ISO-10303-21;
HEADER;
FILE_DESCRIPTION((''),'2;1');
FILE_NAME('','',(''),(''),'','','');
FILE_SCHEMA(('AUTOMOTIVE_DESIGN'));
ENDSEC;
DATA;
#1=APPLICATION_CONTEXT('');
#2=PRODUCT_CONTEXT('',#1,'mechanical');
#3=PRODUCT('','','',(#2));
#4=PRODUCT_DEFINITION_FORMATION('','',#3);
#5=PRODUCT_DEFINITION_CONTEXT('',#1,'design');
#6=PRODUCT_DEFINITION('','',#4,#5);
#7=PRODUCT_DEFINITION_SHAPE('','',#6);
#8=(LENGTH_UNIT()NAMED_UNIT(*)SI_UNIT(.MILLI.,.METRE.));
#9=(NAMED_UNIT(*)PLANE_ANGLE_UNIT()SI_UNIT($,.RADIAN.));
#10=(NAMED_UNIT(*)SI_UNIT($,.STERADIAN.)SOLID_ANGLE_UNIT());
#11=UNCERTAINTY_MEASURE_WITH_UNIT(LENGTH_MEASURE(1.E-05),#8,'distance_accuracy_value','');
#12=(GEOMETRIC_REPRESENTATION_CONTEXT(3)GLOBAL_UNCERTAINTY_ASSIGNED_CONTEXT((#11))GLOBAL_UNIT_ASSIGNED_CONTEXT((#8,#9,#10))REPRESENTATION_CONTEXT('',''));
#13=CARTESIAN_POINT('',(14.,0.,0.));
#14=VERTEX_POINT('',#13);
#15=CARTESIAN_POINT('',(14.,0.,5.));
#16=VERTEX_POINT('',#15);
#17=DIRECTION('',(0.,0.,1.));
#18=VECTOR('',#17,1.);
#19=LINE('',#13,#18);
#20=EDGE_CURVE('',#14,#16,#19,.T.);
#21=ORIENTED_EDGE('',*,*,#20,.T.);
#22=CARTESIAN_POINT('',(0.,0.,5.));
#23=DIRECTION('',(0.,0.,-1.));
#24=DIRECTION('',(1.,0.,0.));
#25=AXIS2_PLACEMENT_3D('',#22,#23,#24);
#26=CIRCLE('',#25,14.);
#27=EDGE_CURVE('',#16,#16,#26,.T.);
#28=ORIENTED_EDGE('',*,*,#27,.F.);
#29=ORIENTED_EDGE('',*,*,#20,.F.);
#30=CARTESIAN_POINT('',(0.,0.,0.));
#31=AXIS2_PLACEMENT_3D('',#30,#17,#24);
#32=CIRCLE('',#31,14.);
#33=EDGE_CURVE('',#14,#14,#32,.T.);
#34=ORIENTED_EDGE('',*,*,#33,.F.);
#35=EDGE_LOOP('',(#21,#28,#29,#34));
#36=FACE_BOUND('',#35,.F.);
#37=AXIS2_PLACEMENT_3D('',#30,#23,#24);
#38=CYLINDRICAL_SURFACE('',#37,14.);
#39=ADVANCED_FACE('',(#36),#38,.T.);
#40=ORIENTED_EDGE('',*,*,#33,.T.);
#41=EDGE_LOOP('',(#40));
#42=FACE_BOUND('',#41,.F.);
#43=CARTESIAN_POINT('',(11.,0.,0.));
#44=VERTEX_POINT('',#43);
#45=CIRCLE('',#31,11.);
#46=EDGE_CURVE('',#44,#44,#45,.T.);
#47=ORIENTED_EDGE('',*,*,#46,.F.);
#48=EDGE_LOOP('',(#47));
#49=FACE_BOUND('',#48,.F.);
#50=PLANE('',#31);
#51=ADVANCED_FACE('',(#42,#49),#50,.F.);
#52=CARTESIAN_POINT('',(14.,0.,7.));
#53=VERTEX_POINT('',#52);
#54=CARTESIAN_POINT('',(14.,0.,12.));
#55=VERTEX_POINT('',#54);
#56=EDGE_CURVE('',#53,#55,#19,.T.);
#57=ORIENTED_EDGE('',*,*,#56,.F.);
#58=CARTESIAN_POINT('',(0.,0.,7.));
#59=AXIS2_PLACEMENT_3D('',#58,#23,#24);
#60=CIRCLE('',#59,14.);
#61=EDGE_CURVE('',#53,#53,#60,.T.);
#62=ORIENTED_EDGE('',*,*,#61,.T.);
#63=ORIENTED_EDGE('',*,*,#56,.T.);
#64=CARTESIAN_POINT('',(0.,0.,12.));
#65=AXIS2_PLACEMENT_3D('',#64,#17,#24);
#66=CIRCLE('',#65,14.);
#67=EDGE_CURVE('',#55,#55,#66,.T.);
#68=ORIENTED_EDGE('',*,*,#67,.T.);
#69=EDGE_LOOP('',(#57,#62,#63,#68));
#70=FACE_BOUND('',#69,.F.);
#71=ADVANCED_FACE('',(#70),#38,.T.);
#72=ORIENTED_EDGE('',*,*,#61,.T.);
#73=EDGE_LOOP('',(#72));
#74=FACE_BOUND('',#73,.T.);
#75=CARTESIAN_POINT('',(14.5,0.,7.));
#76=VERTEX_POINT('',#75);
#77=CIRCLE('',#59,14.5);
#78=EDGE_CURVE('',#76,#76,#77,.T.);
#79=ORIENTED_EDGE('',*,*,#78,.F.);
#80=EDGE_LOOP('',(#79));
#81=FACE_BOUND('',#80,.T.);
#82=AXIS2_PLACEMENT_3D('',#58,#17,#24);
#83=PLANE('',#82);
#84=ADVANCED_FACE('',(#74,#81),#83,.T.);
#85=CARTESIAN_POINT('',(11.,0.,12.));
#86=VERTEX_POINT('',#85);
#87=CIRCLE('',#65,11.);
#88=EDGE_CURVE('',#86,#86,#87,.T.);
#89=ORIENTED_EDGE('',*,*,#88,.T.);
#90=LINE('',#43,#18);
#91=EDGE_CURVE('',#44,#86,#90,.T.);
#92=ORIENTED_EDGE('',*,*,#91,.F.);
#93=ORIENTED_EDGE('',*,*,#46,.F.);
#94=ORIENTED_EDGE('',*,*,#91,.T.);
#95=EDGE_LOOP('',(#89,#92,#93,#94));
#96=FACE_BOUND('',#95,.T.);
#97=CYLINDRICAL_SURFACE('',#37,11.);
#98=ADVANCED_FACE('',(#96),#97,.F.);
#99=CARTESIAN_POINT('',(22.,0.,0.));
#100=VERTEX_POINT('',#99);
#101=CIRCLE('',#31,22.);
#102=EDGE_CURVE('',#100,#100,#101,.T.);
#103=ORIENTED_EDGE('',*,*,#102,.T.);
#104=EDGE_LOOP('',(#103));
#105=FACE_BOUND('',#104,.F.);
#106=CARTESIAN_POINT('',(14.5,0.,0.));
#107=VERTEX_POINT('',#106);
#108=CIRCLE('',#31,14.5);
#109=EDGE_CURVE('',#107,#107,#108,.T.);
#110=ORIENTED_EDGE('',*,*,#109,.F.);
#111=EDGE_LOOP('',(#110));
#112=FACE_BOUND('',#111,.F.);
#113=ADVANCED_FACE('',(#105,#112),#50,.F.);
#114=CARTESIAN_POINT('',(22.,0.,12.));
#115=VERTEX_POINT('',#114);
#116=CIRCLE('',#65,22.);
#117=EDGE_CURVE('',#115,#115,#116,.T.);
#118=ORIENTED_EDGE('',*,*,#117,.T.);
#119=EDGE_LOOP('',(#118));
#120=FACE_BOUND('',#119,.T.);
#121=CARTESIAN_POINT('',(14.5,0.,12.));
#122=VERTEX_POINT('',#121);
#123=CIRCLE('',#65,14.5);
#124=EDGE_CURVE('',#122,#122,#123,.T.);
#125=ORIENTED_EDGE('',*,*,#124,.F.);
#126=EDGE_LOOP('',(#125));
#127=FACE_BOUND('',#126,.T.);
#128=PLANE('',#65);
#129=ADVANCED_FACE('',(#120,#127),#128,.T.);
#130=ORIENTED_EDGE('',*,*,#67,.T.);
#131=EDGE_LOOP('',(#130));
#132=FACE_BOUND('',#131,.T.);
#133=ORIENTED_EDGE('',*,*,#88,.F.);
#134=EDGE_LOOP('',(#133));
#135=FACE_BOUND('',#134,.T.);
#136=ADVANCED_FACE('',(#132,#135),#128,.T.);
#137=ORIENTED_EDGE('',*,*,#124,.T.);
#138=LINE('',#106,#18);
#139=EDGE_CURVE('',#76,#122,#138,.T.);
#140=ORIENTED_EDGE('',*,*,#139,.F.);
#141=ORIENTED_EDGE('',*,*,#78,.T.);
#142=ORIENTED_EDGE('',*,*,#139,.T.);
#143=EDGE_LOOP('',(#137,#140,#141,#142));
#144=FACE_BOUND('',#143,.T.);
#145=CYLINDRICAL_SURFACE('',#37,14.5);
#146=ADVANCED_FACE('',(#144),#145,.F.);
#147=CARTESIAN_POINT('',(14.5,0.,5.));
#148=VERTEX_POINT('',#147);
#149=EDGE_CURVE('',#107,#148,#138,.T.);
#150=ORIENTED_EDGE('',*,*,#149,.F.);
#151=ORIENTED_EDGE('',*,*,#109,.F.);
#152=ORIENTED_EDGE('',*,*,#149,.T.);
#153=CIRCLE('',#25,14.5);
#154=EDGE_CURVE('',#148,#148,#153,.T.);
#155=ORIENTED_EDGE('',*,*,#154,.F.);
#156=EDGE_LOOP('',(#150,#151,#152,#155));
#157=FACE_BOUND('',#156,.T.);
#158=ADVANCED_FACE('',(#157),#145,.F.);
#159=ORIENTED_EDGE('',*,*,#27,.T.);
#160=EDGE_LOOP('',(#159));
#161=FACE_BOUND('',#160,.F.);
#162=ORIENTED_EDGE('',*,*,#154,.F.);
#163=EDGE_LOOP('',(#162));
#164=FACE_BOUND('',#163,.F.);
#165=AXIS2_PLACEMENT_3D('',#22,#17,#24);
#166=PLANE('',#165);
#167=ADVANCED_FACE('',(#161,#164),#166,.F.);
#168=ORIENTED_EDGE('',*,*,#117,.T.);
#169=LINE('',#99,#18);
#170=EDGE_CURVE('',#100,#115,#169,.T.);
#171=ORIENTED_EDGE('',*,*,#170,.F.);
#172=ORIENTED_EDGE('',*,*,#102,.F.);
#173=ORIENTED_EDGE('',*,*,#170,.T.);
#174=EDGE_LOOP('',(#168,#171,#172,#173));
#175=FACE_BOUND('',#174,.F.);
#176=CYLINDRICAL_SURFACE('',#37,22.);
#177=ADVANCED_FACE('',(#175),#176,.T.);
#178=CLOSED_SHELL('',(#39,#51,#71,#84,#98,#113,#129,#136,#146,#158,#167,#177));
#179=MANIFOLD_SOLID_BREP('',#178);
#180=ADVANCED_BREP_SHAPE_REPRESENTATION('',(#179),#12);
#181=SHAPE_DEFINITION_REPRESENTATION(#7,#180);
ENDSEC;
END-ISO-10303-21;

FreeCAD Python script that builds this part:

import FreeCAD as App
import Part
import Sketcher

V = App.Vector

doc = App.newDocument("Part")
params = doc.addObject("Spreadsheet::Sheet", "Params")
for row, (alias, value) in enumerate([
    ("sketch1_diameter", "28 mm"),
    ("sketch1_diameter2", "22 mm"),
    ("pad1_length", "12 mm"),
    ("sketch2_diameter", "44 mm"),
    ("sketch2_diameter2", "29 mm"),
    ("pad2_length", "12 mm"),
    ("sketch3_diameter", "25 mm"),
    ("sketch3_diameter2", "36.5 mm"),
    ("pad3_length", "1 mm"),
    ("pad3_length2", "1 mm"),
], start=1):
    params.set(f"A{row}", alias)
    params.set(f"B{row}", "=" + value)
    params.setAlias(f"B{row}", alias)

body = doc.addObject("PartDesign::Body", "Body")

# Sketch on XY plane
sketch1 = doc.addObject("Sketcher::SketchObject", "Sketch")
body.addObject(sketch1)
sketch1.AttachmentSupport = (doc.XY_Plane, [""])
sketch1.MapMode = "FlatFace"
sketch1.addGeometry([
    Part.Circle(V(0, 0, 0), V(0, 0, 1), 14),
    Part.Circle(V(0, 0, 0), V(0, 0, 1), 11),
], False)
sketch1.addConstraint([
    Sketcher.Constraint("Coincident", 0, 3, -1, 1),
    Sketcher.Constraint("Coincident", 1, 3, -1, 1),
    Sketcher.Constraint("Diameter", 0, 28.0),
    Sketcher.Constraint("Diameter", 1, 22.0),
])
sketch1.setExpression("Constraints[2]", "Params.sketch1_diameter")
sketch1.setExpression("Constraints[3]", "Params.sketch1_diameter2")
pad1 = doc.addObject("PartDesign::Pad", "Pad")
body.addObject(pad1)
pad1.Profile = sketch1
pad1.setExpression("Length", "Params.pad1_length")
body2 = doc.addObject("PartDesign::Body", "Body001")

# Sketch on XY plane
sketch2 = doc.addObject("Sketcher::SketchObject", "Sketch001")
body2.addObject(sketch2)
sketch2.AttachmentSupport = (doc.getObject("XY_Plane001"), [""])
sketch2.MapMode = "FlatFace"
sketch2.addGeometry([
    Part.Circle(V(0, 0, 0), V(0, 0, 1), 22),
    Part.Circle(V(0, 0, 0), V(0, 0, 1), 14.5),
], False)
sketch2.addConstraint([
    Sketcher.Constraint("Coincident", 0, 3, -1, 1),
    Sketcher.Constraint("Coincident", 1, 3, -1, 1),
    Sketcher.Constraint("Diameter", 0, 44.0),
    Sketcher.Constraint("Diameter", 1, 29.0),
])
sketch2.setExpression("Constraints[2]", "Params.sketch2_diameter")
sketch2.setExpression("Constraints[3]", "Params.sketch2_diameter2")
pad2 = doc.addObject("PartDesign::Pad", "Pad001")
body2.addObject(pad2)
pad2.Profile = sketch2
pad2.setExpression("Length", "Params.pad2_length")
body.AllowCompound = True
doc.recompute()

boolean = doc.addObject("PartDesign::Boolean", "Boolean")
body.addObject(boolean)
boolean.Type = "Fuse"
boolean.addObjects([body2])

# Sketch on XY plane
sketch3 = doc.addObject("Sketcher::SketchObject", "Sketch002")
body.addObject(sketch3)
sketch3.AttachmentSupport = (doc.XY_Plane, [""])
sketch3.MapMode = "FlatFace"
sketch3.AttachmentOffset = App.Placement(V(0, 0, 6), App.Rotation())
sketch3.addGeometry([
    Part.Circle(V(0, 0, 0), V(0, 0, 1), 18.25),
    Part.Circle(V(0, 0, 0), V(0, 0, 1), 12.5),
], False)
sketch3.addConstraint([
    Sketcher.Constraint("Coincident", 0, 3, -1, 1),
    Sketcher.Constraint("Coincident", 1, 3, -1, 1),
    Sketcher.Constraint("Diameter", 1, 25.0),
    Sketcher.Constraint("Diameter", 0, 36.5),
])
sketch3.setExpression("Constraints[2]", "Params.sketch3_diameter")
sketch3.setExpression("Constraints[3]", "Params.sketch3_diameter2")
pad3 = doc.addObject("PartDesign::Pad", "Pad002")
body.addObject(pad3)
pad3.Profile = sketch3
pad3.Type = "TwoLengths"
pad3.setExpression("Length", "Params.pad3_length")
pad3.setExpression("Length2", "Params.pad3_length2")

doc.recompute()
